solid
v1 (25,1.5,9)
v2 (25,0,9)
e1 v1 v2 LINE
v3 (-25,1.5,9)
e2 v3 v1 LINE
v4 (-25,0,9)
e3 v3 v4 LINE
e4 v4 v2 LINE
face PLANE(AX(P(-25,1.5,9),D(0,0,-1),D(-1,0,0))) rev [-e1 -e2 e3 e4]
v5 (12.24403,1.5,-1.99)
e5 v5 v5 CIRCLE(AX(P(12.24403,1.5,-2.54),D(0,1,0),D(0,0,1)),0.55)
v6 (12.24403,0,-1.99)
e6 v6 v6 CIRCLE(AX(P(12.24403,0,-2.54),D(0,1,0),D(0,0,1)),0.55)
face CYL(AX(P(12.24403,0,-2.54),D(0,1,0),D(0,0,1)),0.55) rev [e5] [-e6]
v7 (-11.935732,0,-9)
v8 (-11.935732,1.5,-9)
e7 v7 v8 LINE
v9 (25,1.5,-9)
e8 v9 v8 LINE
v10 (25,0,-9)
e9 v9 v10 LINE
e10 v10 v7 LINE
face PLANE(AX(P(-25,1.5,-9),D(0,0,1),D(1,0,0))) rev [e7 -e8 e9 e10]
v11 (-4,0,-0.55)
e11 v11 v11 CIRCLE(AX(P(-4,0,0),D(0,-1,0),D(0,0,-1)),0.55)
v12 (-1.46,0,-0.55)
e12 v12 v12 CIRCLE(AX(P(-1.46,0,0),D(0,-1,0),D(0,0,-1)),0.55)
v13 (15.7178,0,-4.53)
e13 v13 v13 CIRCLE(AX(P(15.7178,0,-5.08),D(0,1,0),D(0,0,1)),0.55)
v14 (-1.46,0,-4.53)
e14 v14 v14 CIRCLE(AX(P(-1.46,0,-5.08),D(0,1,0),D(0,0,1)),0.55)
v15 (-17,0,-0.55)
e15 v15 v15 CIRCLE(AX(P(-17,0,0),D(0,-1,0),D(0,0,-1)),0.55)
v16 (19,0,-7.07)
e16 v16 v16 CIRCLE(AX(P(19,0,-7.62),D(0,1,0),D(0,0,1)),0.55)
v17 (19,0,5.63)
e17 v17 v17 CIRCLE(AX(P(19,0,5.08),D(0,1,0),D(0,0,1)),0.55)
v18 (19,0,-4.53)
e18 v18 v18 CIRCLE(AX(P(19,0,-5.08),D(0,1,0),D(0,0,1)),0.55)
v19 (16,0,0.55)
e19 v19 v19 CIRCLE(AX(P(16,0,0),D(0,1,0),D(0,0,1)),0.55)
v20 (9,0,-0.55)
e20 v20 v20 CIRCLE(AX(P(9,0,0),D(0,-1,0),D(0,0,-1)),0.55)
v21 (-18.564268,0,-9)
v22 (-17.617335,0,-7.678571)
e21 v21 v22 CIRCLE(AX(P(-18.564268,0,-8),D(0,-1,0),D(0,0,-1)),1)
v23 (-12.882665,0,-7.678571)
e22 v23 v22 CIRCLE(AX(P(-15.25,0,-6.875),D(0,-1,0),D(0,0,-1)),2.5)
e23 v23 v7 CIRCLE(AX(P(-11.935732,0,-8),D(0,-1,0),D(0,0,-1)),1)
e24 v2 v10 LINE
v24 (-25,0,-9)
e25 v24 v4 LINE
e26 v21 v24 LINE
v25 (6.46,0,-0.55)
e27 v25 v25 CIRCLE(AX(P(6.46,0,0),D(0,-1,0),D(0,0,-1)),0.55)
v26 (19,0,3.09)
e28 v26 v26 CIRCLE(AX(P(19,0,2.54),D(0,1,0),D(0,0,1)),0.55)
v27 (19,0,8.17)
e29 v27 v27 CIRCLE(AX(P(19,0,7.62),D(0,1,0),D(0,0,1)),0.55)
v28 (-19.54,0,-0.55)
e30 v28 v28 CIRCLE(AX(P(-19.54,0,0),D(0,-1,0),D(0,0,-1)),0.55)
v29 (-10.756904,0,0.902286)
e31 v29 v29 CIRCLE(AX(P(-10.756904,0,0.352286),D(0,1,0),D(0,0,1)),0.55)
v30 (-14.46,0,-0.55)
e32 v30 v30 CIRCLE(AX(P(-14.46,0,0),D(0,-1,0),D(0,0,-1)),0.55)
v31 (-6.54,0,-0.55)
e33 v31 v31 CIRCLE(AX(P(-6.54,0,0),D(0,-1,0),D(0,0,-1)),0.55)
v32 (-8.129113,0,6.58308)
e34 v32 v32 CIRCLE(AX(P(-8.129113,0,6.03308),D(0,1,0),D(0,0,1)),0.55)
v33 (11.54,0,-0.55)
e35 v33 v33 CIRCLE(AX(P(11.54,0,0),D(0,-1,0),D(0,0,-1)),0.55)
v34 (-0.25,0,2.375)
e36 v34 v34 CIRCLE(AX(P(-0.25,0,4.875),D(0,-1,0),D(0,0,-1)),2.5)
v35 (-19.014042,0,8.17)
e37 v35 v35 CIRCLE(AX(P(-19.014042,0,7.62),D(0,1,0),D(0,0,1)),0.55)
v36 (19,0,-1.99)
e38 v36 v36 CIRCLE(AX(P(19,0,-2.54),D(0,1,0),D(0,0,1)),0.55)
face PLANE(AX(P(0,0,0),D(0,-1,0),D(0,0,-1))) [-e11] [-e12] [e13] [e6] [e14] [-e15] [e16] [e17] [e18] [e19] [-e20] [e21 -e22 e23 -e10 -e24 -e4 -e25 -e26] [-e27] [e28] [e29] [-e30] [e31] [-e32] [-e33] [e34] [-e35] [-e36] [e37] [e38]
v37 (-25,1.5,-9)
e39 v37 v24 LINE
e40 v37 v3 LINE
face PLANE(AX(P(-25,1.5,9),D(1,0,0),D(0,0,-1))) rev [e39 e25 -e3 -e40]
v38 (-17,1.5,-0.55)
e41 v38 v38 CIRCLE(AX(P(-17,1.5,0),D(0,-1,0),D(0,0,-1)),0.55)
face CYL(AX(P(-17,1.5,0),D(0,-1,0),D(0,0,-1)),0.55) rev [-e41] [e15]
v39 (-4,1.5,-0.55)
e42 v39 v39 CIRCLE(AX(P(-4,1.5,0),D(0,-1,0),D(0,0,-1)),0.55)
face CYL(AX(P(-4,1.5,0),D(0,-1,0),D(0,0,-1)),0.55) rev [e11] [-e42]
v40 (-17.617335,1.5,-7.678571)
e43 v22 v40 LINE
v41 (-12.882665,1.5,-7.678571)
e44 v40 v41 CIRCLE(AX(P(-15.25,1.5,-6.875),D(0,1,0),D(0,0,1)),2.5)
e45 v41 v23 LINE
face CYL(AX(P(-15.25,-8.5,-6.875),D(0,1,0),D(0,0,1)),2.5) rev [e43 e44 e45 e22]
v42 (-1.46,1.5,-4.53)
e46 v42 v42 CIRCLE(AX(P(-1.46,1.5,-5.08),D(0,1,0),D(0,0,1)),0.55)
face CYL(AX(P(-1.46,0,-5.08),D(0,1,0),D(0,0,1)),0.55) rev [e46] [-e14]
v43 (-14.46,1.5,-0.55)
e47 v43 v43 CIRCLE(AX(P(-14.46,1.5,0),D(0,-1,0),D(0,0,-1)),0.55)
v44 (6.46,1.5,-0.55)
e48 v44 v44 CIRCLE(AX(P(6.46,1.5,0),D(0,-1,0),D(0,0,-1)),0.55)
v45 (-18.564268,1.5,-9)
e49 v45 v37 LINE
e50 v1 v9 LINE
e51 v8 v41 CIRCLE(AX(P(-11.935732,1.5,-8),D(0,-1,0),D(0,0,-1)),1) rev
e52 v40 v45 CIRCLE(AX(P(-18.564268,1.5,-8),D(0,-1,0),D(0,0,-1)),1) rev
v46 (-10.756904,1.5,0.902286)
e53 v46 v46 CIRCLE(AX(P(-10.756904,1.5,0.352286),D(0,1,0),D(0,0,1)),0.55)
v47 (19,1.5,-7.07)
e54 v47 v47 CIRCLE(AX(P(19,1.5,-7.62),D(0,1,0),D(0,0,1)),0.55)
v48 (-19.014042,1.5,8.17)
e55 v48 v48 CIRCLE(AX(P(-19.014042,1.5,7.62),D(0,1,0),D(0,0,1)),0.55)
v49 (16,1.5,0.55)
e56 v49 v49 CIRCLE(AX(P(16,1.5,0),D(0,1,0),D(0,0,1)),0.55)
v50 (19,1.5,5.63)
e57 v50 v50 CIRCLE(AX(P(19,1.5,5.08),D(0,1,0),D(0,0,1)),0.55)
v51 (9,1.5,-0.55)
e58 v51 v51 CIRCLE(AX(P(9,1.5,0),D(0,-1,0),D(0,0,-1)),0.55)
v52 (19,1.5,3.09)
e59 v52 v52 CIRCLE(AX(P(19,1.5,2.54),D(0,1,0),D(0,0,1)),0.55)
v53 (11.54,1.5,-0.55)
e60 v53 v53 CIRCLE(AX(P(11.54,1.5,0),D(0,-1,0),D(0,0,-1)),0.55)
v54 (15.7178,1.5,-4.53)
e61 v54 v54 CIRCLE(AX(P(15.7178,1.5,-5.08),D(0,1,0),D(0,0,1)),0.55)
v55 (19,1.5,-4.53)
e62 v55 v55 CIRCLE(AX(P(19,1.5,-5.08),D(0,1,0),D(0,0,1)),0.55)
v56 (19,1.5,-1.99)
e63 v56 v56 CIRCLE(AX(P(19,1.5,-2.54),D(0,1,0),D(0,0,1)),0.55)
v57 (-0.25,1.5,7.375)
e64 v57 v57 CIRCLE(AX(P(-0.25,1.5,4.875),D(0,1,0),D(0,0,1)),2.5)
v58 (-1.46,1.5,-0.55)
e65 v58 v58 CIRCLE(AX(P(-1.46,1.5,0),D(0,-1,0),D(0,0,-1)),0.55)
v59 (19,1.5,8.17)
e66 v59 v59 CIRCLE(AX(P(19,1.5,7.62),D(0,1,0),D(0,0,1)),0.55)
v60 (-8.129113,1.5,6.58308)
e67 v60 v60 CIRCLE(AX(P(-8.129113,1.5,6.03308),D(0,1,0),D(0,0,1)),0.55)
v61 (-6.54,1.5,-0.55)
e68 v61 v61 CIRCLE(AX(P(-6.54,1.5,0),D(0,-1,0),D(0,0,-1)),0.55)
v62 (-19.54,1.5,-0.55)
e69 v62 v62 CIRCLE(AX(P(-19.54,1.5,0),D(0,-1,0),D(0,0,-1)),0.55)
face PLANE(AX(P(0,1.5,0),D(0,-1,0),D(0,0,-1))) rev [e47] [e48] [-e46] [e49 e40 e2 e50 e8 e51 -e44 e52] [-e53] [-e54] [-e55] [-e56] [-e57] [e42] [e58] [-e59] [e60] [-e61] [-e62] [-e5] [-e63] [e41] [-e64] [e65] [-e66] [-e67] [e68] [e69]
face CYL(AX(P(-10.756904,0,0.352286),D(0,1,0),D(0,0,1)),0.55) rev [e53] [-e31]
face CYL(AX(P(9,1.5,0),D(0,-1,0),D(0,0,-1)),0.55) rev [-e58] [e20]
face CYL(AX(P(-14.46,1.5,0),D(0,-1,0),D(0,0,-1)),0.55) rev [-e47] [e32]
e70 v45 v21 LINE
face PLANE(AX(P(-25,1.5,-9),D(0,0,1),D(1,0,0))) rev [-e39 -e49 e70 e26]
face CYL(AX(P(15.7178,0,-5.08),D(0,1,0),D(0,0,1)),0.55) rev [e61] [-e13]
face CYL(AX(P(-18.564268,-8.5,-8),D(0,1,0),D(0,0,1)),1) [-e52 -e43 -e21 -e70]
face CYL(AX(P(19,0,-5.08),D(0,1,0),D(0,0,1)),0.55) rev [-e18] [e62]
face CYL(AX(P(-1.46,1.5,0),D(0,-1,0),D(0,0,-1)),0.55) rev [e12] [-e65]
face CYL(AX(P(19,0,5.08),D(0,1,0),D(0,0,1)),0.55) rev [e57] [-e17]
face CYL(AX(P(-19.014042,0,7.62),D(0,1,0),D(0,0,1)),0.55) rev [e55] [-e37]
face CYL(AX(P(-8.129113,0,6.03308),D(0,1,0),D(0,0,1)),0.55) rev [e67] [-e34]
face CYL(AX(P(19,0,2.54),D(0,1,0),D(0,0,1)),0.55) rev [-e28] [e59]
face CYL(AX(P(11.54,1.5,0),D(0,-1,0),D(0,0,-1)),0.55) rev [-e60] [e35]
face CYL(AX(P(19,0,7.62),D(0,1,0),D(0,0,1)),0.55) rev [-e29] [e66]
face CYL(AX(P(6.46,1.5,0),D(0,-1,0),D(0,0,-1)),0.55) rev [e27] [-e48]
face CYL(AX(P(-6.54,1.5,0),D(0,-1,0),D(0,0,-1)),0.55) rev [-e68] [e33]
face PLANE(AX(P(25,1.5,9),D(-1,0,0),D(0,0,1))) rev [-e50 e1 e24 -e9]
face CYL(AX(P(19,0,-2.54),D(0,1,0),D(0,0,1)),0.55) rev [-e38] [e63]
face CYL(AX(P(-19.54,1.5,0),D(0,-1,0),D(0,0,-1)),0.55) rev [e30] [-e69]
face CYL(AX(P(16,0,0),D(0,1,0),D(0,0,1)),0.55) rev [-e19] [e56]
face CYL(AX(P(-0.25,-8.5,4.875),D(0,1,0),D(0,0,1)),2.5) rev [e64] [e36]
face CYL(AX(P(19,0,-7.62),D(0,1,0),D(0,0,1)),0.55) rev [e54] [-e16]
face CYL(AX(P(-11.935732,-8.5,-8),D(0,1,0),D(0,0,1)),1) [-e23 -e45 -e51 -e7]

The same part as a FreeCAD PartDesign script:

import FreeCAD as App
import Part
import Sketcher

V = App.Vector
Q = App.Units.Quantity


def edges_at(feature, points):
    """Names of the edges that pass closest to the given points."""
    edges = feature.Shape.Edges
    near = lambda p: min(range(len(edges)), key=lambda i: edges[i].distToShape(Part.Vertex(*p))[0])
    return sorted({f"Edge{near(p) + 1}" for p in points})

doc = App.newDocument("Part")
body = doc.addObject("PartDesign::Body", "Body")

# Sketch on XZ plane
sketch1 = body.newObject("Sketcher::SketchObject", "Sketch")
sketch1.AttachmentSupport = (doc.getObject("XZ_Plane"), [""])
sketch1.MapMode = "FlatFace"
sketch1.addGeometry([
    Part.LineSegment(V(-25, -9, 0), V(-25, 9, 0)),
    Part.LineSegment(V(-25, 9, 0), V(25, 9, 0)),
    Part.LineSegment(V(25, 9, 0), V(25, -9, 0)),
    Part.LineSegment(V(25, -9, 0), V(-25, -9, 0)),
], False)
sketch1.addConstraint([
    Sketcher.Constraint("Coincident", 0, 2, 1, 1),
    Sketcher.Constraint("Coincident", 1, 2, 2, 1),
    Sketcher.Constraint("Coincident", 2, 2, 3, 1),
    Sketcher.Constraint("Coincident", 3, 2, 0, 1),
    Sketcher.Constraint("Vertical", 0),
    Sketcher.Constraint("Horizontal", 1),
    Sketcher.Constraint("Vertical", 2),
    Sketcher.Constraint("Horizontal", 3),
    Sketcher.Constraint("Symmetric", 0, 2, 2, 2, -1, 1),
    Sketcher.Constraint("DistanceX", 1, 1, 1, 2, Q("50 mm")),
    Sketcher.Constraint("DistanceY", 0, 1, 0, 2, Q("18 mm")),
])
pad1 = body.newObject("PartDesign::Pad", "Pad")
pad1.Profile = sketch1
pad1.Length = 1.5
pad1.Reversed = True

# Sketch on XZ plane
sketch2 = body.newObject("Sketcher::SketchObject", "Sketch001")
sketch2.AttachmentSupport = (doc.getObject("XZ_Plane"), [""])
sketch2.MapMode = "FlatFace"
sketch2.AttachmentOffset = App.Placement(V(0, 0, -1.5), App.Rotation())
sketch2.addGeometry([
    Part.Circle(V(-15.2, -6.9, 0), V(0, 0, 1), 2.5),
    Part.Circle(V(-0.2, 4.9, 0), V(0, 0, 1), 2.5),
], False)
sketch2.addConstraint([
    Sketcher.Constraint("Equal", 0, 1),
    Sketcher.Constraint("Diameter", 0, Q("5 mm")),
    Sketcher.Constraint("DistanceX", 0, 3, 1, 3, Q("15 mm")),
    Sketcher.Constraint("DistanceX", 0, 3, -1, 1, Q("15.25 mm")),
    Sketcher.Constraint("DistanceY", 0, 3, 1, 3, Q("11.75 mm")),
    Sketcher.Constraint("DistanceY", 0, 3, -1, 1, Q("6.875 mm")),
])
pocket1 = body.newObject("PartDesign::Pocket", "Pocket")
pocket1.Profile = sketch2
pocket1.Length = 10
pocket1.Reversed = True

# Sketch on XZ plane
sketch3 = body.newObject("Sketcher::SketchObject", "Sketch002")
sketch3.AttachmentSupport = (doc.getObject("XZ_Plane"), [""])
sketch3.MapMode = "FlatFace"
sketch3.addGeometry([
    Part.Circle(V(-17, 0, 0), V(0, 0, 1), 0.6),  # 0
    Part.Circle(V(-4, 0, 0), V(0, 0, 1), 0.6),  # 1
    Part.Circle(V(9, 0, 0), V(0, 0, 1), 0.6),  # 2
    Part.Circle(V(-19.5, 0, 0), V(0, 0, 1), 0.6),  # 3
    Part.Circle(V(-14.5, 0, 0), V(0, 0, 1), 0.6),  # 4
    Part.Circle(V(-6.5, 0, 0), V(0, 0, 1), 0.6),  # 5
    Part.Circle(V(-1.5, 0, 0), V(0, 0, 1), 0.6),  # 6
    Part.Circle(V(6.5, 0, 0), V(0, 0, 1), 0.6),  # 7
    Part.Circle(V(11.5, 0, 0), V(0, 0, 1), 0.6),  # 8
], False)
sketch3.addConstraint([
    Sketcher.Constraint("Equal", 0, 1),
    Sketcher.Constraint("Equal", 1, 2),
    Sketcher.Constraint("Equal", 2, 3),
    Sketcher.Constraint("Equal", 3, 4),
    Sketcher.Constraint("Equal", 4, 5),
    Sketcher.Constraint("Equal", 5, 6),
    Sketcher.Constraint("Equal", 6, 7),
    Sketcher.Constraint("Equal", 7, 8),
    Sketcher.Constraint("PointOnObject", 0, 3, -1),
    Sketcher.Constraint("PointOnObject", 1, 3, -1),
    Sketcher.Constraint("PointOnObject", 2, 3, -1),
    Sketcher.Constraint("PointOnObject", 3, 3, -1),
    Sketcher.Constraint("PointOnObject", 4, 3, -1),
    Sketcher.Constraint("PointOnObject", 5, 3, -1),
    Sketcher.Constraint("PointOnObject", 6, 3, -1),
    Sketcher.Constraint("PointOnObject", 7, 3, -1),
    Sketcher.Constraint("PointOnObject", 8, 3, -1),
    Sketcher.Constraint("Diameter", 0, Q("1.1 mm")),
    Sketcher.Constraint("DistanceX", 0, 3, -1, 1, Q("17 mm")),
    Sketcher.Constraint("DistanceX", 1, 3, -1, 1, Q("4 mm")),
    Sketcher.Constraint("DistanceX", -1, 1, 2, 3, Q("9 mm")),
    Sketcher.Constraint("DistanceX", 3, 3, 5, 3, Q("13 mm")),
    Sketcher.Constraint("DistanceX", 4, 3, 6, 3, Q("13 mm")),
    Sketcher.Constraint("DistanceX", 5, 3, 7, 3, Q("13 mm")),
    Sketcher.Constraint("DistanceX", 6, 3, 8, 3, Q("13 mm")),
    Sketcher.Constraint("DistanceX", 3, 3, -1, 1, Q("19.54 mm")),
    Sketcher.Constraint("DistanceX", 4, 3, -1, 1, Q("14.46 mm")),
])
pocket2 = body.newObject("PartDesign::Pocket", "Pocket001")
pocket2.Profile = sketch3
pocket2.Type = "ThroughAll"

# Sketch on XZ plane
sketch4 = body.newObject("Sketcher::SketchObject", "Sketch003")
sketch4.AttachmentSupport = (doc.getObject("XZ_Plane"), [""])
sketch4.MapMode = "FlatFace"
sketch4.AttachmentOffset = App.Placement(V(0, 0, -1.5), App.Rotation())
sketch4.addGeometry([
    Part.Circle(V(19, 2.5, 0), V(0, 0, 1), 0.6),  # 0
    Part.Circle(V(19, 5.1, 0), V(0, 0, 1), 0.6),  # 1
    Part.Circle(V(19, 7.6, 0), V(0, 0, 1), 0.6),  # 2
    Part.Circle(V(19, -2.5, 0), V(0, 0, 1), 0.6),  # 3
    Part.Circle(V(19, -5.1, 0), V(0, 0, 1), 0.6),  # 4
    Part.Circle(V(19, -7.6, 0), V(0, 0, 1), 0.6),  # 5
    Part.Circle(V(16, 0, 0), V(0, 0, 1), 0.6),  # 6
], False)
sketch4.addConstraint([
    Sketcher.Constraint("Equal", 0, 1),
    Sketcher.Constraint("Equal", 1, 2),
    Sketcher.Constraint("Equal", 2, 3),
    Sketcher.Constraint("Equal", 3, 4),
    Sketcher.Constraint("Equal", 4, 5),
    Sketcher.Constraint("Equal", 5, 6),
    Sketcher.Constraint("Symmetric", 0, 3, 3, 3, -1),
    Sketcher.Constraint("Symmetric", 1, 3, 4, 3, -1),
    Sketcher.Constraint("Symmetric", 2, 3, 5, 3, -1),
    Sketcher.Constraint("PointOnObject", 6, 3, -1),
    Sketcher.Constraint("Vertical", 0, 3, 1, 3),
    Sketcher.Constraint("Vertical", 1, 3, 2, 3),
    Sketcher.Constraint("Diameter", 0, Q("1.1 mm")),
    Sketcher.Constraint("DistanceX", -1, 1, 0, 3, Q("19 mm")),
    Sketcher.Constraint("DistanceX", -1, 1, 6, 3, Q("16 mm")),
    Sketcher.Constraint("DistanceY", 4, 3, 2, 3, Q("12.7 mm")),
    Sketcher.Constraint("DistanceY", -1, 1, 0, 3, Q("2.54 mm")),
    Sketcher.Constraint("DistanceY", -1, 1, 1, 3, Q("5.08 mm")),
])
pocket3 = body.newObject("PartDesign::Pocket", "Pocket002")
pocket3.Profile = sketch4
pocket3.Type = "ThroughAll"
pocket3.Reversed = True

# Sketch on XZ plane
sketch5 = body.newObject("Sketcher::SketchObject", "Sketch004")
sketch5.AttachmentSupport = (doc.getObject("XZ_Plane"), [""])
sketch5.MapMode = "FlatFace"
sketch5.AttachmentOffset = App.Placement(V(0, 0, -1.5), App.Rotation())
sketch5.addGeometry([
    Part.Circle(V(-10.8, 0.4, 0), V(0, 0, 1), 0.6),  # 0
    Part.Circle(V(-8.1, 6, 0), V(0, 0, 1), 0.6),  # 1
    Part.Circle(V(-19, 7.6, 0), V(0, 0, 1), 0.6),  # 2
    Part.Circle(V(-1.5, -5.1, 0), V(0, 0, 1), 0.6),  # 3
    Part.Circle(V(12.2, -2.5, 0), V(0, 0, 1), 0.6),  # 4
    Part.Circle(V(15.7, -5.1, 0), V(0, 0, 1), 0.6),  # 5
], False)
sketch5.addConstraint([
    Sketcher.Constraint("Equal", 0, 1),
    Sketcher.Constraint("Equal", 1, 2),
    Sketcher.Constraint("Equal", 2, 3),
    Sketcher.Constraint("Equal", 3, 4),
    Sketcher.Constraint("Equal", 4, 5),
    Sketcher.Constraint("Horizontal", 3, 3, 5, 3),
    Sketcher.Constraint("Diameter", 0, Q("1.1 mm")),
    Sketcher.Constraint("DistanceY", 3, 3, 2, 3, Q("12.7 mm")),
    Sketcher.Constraint("DistanceY", -1, 1, 2, 3, Q("7.62 mm")),
    Sketcher.Constraint("DistanceX", 3, 3, -1, 1, Q("1.46 mm")),
    Sketcher.Constraint("DistanceY", 4, 3, -1, 1, Q("2.54 mm")),
    Sketcher.Constraint("DistanceX", -1, 1, 5, 3, Q("15.7178 mm")),
    Sketcher.Constraint("DistanceY", -1, 1, 1, 3, Q("6.03308 mm")),
    Sketcher.Constraint("DistanceX", -1, 1, 4, 3, Q("12.24403 mm")),
    Sketcher.Constraint("DistanceX", 0, 3, 1, 3, Q("2.627791 mm")),
    Sketcher.Constraint("DistanceX", 2, 3, 0, 3, Q("8.257138 mm")),
    Sketcher.Constraint("DistanceX", 0, 3, -1, 1, Q("10.756904 mm")),
    Sketcher.Constraint("DistanceY", -1, 1, 0, 3, Q("0.352286 mm")),
])
pocket4 = body.newObject("PartDesign::Pocket", "Pocket003")
pocket4.Profile = sketch5
pocket4.Type = "ThroughAll"
pocket4.Reversed = True
doc.recompute()

fillet = body.newObject("PartDesign::Fillet", "Fillet")
fillet.Base = (pocket4, edges_at(pocket4, [(-13.933, 0.75, -9), (-16.567, 0.75, -9)]))
fillet.Radius = 1

doc.recompute()
